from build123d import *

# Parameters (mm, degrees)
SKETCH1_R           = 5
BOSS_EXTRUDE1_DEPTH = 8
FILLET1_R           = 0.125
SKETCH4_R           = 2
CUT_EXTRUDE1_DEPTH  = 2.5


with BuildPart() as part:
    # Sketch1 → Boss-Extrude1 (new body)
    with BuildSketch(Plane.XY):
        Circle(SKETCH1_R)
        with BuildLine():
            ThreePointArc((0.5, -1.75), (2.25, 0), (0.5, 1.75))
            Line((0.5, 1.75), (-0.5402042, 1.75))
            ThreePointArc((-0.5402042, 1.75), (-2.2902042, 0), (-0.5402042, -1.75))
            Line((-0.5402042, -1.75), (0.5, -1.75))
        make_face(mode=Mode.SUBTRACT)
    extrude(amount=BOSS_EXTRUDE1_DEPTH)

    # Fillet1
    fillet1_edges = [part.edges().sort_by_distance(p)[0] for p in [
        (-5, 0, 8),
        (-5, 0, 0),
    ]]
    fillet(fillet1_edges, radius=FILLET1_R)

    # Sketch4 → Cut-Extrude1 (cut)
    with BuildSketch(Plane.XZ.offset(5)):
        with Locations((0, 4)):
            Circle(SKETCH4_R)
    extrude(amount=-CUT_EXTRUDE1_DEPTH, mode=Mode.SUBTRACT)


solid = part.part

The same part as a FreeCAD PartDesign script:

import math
import FreeCAD as App
import Part
import Sketcher

V = App.Vector


def edges_at(feature, points):
    """Names of the edges that pass closest to the given points."""
    edges = feature.Shape.Edges
    near = lambda p: min(range(len(edges)), key=lambda i: edges[i].distToShape(Part.Vertex(*p))[0])
    return sorted({f"Edge{near(p) + 1}" for p in points})

doc = App.newDocument("Part")
body = doc.addObject("PartDesign::Body", "Body")

# Sketch on XY plane
sketch1 = body.newObject("Sketcher::SketchObject", "Sketch")
sketch1.AttachmentSupport = (doc.getObject("XY_Plane"), [""])
sketch1.MapMode = "FlatFace"
sketch1.addGeometry(Part.Circle(V(0, 0, 0), V(0, 0, 1), 5), False)
sketch1.addGeometry(Part.ArcOfCircle(Part.Circle(V(0.5, 0, 0), V(0, 0, 1), 1.8), math.radians(-90), math.radians(90)), False)
sketch1.addGeometry(Part.LineSegment(V(0.5, -1.8, 0), V(-0.5, -1.8, 0)), False)
sketch1.addGeometry(Part.ArcOfCircle(Part.Circle(V(-0.5, 0, 0), V(0, 0, 1), 1.8), math.radians(90), math.radians(270)), False)
sketch1.addGeometry(Part.LineSegment(V(-0.5, 1.8, 0), V(0.5, 1.8, 0)), False)
sketch1.addConstraint(Sketcher.Constraint("Tangent", 1, 1, 2, 1))
sketch1.addConstraint(Sketcher.Constraint("Tangent", 2, 2, 3, 2))
sketch1.addConstraint(Sketcher.Constraint("Tangent", 3, 1, 4, 1))
sketch1.addConstraint(Sketcher.Constraint("Tangent", 4, 2, 1, 2))
sketch1.addConstraint(Sketcher.Constraint("Horizontal", 2))
sketch1.addConstraint(Sketcher.Constraint("Horizontal", 4))
sketch1.addConstraint(Sketcher.Constraint("Coincident", 0, 3, -1, 1))
sketch1.addConstraint(Sketcher.Constraint("PointOnObject", 1, 3, -1))
sketch1.addConstraint(Sketcher.Constraint("Diameter", 0, 10.0))
sketch1.addConstraint(Sketcher.Constraint("Radius", 1, 1.75))
sketch1.addConstraint(Sketcher.Constraint("DistanceX", -1, 1, 1, 3, 0.5))
sketch1.addConstraint(Sketcher.Constraint("DistanceX", 2, 2, 2, 1, 1.040204))
pad1 = body.newObject("PartDesign::Pad", "Pad")
pad1.Profile = sketch1
pad1.Length = 8
doc.recompute()

fillet = body.newObject("PartDesign::Fillet", "Fillet")
fillet.Base = (pad1, edges_at(pad1, [(-5, 0, 8), (-5, 0, 0)]))
fillet.Radius = 0.125

# Sketch on XZ plane
sketch2 = body.newObject("Sketcher::SketchObject", "Sketch001")
sketch2.AttachmentSupport = (doc.getObject("XZ_Plane"), [""])
sketch2.MapMode = "FlatFace"
sketch2.AttachmentOffset = App.Placement(V(0, 0, 5), App.Rotation())
sketch2.addGeometry(Part.Circle(V(0, 4, 0), V(0, 0, 1), 2), False)
sketch2.addConstraint(Sketcher.Constraint("PointOnObject", 0, 3, -2))
sketch2.addConstraint(Sketcher.Constraint("Diameter", 0, 4.0))
sketch2.addConstraint(Sketcher.Constraint("DistanceY", -1, 1, 0, 3, 4.0))
pocket1 = body.newObject("PartDesign::Pocket", "Pocket")
pocket1.Profile = sketch2
pocket1.Length = 2.5

doc.recompute()
